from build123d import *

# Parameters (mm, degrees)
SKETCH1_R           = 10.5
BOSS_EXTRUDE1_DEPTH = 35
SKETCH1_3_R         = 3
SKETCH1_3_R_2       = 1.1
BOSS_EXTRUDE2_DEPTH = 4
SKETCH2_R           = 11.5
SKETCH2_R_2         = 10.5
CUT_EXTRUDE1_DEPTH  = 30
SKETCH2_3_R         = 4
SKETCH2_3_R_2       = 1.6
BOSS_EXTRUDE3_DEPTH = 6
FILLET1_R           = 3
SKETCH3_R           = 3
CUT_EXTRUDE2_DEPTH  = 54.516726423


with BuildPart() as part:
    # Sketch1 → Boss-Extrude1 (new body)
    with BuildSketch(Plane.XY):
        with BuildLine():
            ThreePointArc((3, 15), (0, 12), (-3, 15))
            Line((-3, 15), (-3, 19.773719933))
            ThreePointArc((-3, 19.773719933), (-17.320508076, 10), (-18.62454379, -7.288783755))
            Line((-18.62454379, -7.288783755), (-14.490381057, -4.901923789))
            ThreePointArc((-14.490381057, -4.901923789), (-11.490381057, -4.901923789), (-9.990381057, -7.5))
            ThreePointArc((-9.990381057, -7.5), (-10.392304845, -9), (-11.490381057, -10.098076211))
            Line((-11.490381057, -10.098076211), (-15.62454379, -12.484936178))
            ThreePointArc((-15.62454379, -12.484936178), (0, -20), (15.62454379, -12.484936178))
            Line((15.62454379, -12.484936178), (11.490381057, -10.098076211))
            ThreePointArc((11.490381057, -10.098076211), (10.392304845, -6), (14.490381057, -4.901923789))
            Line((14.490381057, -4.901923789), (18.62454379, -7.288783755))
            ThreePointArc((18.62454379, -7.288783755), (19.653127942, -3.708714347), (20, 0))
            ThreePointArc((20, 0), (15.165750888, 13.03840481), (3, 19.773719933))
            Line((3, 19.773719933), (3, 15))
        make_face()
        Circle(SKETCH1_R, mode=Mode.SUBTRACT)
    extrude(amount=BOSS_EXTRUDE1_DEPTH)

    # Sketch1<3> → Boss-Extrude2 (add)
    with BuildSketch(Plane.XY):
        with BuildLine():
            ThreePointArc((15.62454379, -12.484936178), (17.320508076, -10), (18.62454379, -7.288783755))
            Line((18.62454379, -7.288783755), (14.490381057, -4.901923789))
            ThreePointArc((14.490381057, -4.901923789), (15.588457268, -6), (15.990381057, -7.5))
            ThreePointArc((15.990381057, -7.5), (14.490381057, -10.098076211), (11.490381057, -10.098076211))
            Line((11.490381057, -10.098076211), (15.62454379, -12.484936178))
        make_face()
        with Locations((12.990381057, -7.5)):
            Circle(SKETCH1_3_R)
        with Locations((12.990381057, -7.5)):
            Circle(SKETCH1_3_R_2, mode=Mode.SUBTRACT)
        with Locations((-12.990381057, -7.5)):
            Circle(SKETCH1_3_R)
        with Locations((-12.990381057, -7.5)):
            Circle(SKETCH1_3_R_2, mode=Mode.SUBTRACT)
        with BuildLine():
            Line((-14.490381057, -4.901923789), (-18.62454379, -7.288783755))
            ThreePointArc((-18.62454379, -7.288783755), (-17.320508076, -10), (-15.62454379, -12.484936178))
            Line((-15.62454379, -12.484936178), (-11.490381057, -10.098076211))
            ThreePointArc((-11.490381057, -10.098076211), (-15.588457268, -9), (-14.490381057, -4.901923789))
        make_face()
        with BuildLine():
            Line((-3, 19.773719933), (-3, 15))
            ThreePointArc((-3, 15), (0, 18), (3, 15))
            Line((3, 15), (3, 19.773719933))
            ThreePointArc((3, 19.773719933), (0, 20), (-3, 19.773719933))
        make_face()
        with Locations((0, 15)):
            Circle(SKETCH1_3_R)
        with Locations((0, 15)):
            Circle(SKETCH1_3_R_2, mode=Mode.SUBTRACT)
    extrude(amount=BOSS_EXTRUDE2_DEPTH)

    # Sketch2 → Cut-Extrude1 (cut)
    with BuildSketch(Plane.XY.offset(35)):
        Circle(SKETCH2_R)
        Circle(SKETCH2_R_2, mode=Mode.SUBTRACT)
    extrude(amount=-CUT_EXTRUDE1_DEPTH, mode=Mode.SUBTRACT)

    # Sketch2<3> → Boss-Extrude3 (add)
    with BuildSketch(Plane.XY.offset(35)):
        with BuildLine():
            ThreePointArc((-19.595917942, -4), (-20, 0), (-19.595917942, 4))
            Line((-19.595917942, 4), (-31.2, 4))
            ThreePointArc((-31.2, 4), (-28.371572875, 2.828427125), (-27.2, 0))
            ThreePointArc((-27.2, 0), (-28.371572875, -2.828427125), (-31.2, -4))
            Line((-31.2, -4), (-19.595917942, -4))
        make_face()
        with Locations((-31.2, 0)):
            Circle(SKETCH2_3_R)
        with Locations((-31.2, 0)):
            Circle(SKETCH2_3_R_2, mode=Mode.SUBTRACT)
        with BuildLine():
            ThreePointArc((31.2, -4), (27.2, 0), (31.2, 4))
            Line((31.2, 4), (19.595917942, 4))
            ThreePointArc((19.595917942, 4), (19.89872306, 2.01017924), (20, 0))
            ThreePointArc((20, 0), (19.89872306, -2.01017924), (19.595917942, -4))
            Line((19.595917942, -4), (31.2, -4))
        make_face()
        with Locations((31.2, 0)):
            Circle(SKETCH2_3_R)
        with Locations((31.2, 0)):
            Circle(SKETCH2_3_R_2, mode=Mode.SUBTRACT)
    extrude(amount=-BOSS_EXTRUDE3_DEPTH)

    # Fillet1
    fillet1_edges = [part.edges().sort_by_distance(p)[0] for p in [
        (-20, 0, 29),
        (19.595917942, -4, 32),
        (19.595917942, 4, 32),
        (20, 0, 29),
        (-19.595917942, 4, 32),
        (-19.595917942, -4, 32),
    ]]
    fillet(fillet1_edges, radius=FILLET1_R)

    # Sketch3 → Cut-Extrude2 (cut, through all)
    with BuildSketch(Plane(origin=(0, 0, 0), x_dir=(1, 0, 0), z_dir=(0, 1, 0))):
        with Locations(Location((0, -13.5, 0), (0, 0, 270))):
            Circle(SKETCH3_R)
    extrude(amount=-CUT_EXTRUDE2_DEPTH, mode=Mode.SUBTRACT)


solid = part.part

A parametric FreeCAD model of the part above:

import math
import FreeCAD as App
import Part
import Sketcher

V = App.Vector
Q = App.Units.Quantity


def edges_at(feature, points):
    """Names of the edges that pass closest to the given points."""
    edges = feature.Shape.Edges
    near = lambda p: min(range(len(edges)), key=lambda i: edges[i].distToShape(Part.Vertex(*p))[0])
    return sorted({f"Edge{near(p) + 1}" for p in points})

doc = App.newDocument("Part")
params = doc.addObject("Spreadsheet::Sheet", "Params")
for row, (alias, value) in enumerate([
    ("sketch1_diameter", "21 mm"),
    ("sketch1_radius", "3 mm"),
    ("sketch1_radius2", "20 mm"),
    ("pad1_length", "35 mm"),
    ("sketch2_radius", "20 mm"),
    ("sketch2_radius2", "3 mm"),
    ("sketch2_diameter", "2.2 mm"),
    ("pad2_length", "4 mm"),
    ("sketch3_diameter", "23 mm"),
    ("sketch3_diameter2", "21 mm"),
    ("pocket1_length", "30 mm"),
    ("sketch4_radius", "20 mm"),
    ("sketch4_radius2", "4 mm"),
    ("sketch4_diameter", "3.2 mm"),
    ("pad3_length", "6 mm"),
    ("fillet_radius", "3 mm"),
    ("sketch5_diameter", "6 mm"),
], start=1):
    params.set(f"A{row}", alias)
    params.set(f"B{row}", "=" + value)
    params.setAlias(f"B{row}", alias)

body = doc.addObject("PartDesign::Body", "Body")

sketch1 = doc.addObject("Sketcher::SketchObject", "Sketch")
body.addObject(sketch1)
sketch1.AttachmentSupport = (doc.XY_Plane, [""])
sketch1.MapMode = "FlatFace"
sketch1.addGeometry([
    Part.ArcOfCircle(Part.Circle(V(0, 15, 0), V(0, 0, 1), 3), math.radians(180), math.radians(360)),
    Part.LineSegment(V(-3, 15, 0), V(-3, 19.8, 0)),
    Part.ArcOfCircle(Part.Circle(V(0, 0, 0), V(0, 0, 1), 20), math.radians(99), math.radians(201)),
    Part.LineSegment(V(-18.6, -7.3, 0), V(-14.5, -4.9, 0)),
    Part.ArcOfCircle(Part.Circle(V(-13, -7.5, 0), V(0, 0, 1), 3), math.radians(0), math.radians(120)),
    Part.ArcOfCircle(Part.Circle(V(-13, -7.5, 0), V(0, 0, 1), 3), math.radians(-60), math.radians(0)),
    Part.LineSegment(V(-11.5, -10.1, 0), V(-15.6, -12.5, 0)),
    Part.ArcOfCircle(Part.Circle(V(0, 0, 0), V(0, 0, 1), 20), math.radians(-141), math.radians(-39)),
    Part.LineSegment(V(15.6, -12.5, 0), V(11.5, -10.1, 0)),
    Part.ArcOfCircle(Part.Circle(V(13, -7.5, 0), V(0, 0, 1), 3), math.radians(60), math.radians(240)),
    Part.LineSegment(V(14.5, -4.9, 0), V(18.6, -7.3, 0)),
    Part.ArcOfCircle(Part.Circle(V(0, 0, 0), V(0, 0, 1), 20), math.radians(-21), math.radians(0)),
    Part.ArcOfCircle(Part.Circle(V(0, 0, 0), V(0, 0, 1), 20), math.radians(0), math.radians(81)),
    Part.LineSegment(V(3, 19.8, 0), V(3, 15, 0)),
    Part.Circle(V(0, 0, 0), V(0, 0, 1), 10.5),
], False)
sketch1.addConstraint([
    Sketcher.Constraint("Tangent", 0, 1, 1, 1),
    Sketcher.Constraint("Coincident", 1, 2, 2, 1),
    Sketcher.Constraint("Coincident", 2, 2, 3, 1),
    Sketcher.Constraint("Tangent", 3, 2, 4, 2),
    Sketcher.Constraint("Tangent", 4, 1, 5, 2),
    Sketcher.Constraint("Tangent", 5, 1, 6, 1),
    Sketcher.Constraint("Coincident", 6, 2, 7, 1),
    Sketcher.Constraint("Coincident", 7, 2, 8, 1),
    Sketcher.Constraint("Tangent", 8, 2, 9, 2),
    Sketcher.Constraint("Tangent", 9, 1, 10, 1),
    Sketcher.Constraint("Coincident", 10, 2, 11, 1),
    Sketcher.Constraint("Tangent", 11, 2, 12, 1),
    Sketcher.Constraint("Coincident", 12, 2, 13, 1),
    Sketcher.Constraint("Tangent", 13, 2, 0, 2),
    Sketcher.Constraint("Vertical", 1),
    Sketcher.Constraint("Vertical", 13),
    Sketcher.Constraint("Coincident", 2, 3, -1, 1),
    Sketcher.Constraint("Coincident", 7, 3, -1, 1),
    Sketcher.Constraint("Coincident", 11, 3, -1, 1),
    Sketcher.Constraint("Coincident", 14, 3, -1, 1),
    Sketcher.Constraint("Equal", 0, 4),
    Sketcher.Constraint("Equal", 4, 5),
    Sketcher.Constraint("Equal", 2, 7),
    Sketcher.Constraint("Equal", 5, 9),
    Sketcher.Constraint("Equal", 7, 11),
    Sketcher.Constraint("Equal", 11, 12),
    Sketcher.Constraint("Symmetric", 4, 3, 9, 3, -2),
    Sketcher.Constraint("PointOnObject", 0, 3, -2),
    Sketcher.Constraint("PointOnObject", 11, 2, -1),
    Sketcher.Constraint("Parallel", 3, 6),
    Sketcher.Constraint("Parallel", 8, 10),
    Sketcher.Constraint("Horizontal", 9, 3, 4, 1),
    Sketcher.Constraint("Horizontal", 6, 2, 7, 2),
    Sketcher.Constraint("Equal", 3, 6),
    Sketcher.Constraint("Diameter", 14, 21.0),
    Sketcher.Constraint("Radius", 0, 3.0),
    Sketcher.Constraint("Radius", 2, 20.0),
    Sketcher.Constraint("Angle", 3, Q("30 deg")),
    Sketcher.Constraint("DistanceY", -1, 1, 0, 3, 15.0),
    Sketcher.Constraint("DistanceY", 4, 3, -1, 1, 7.5),
])
sketch1.setExpression("Constraints[34]", "Params.sketch1_diameter")
sketch1.setExpression("Constraints[35]", "Params.sketch1_radius")
sketch1.setExpression("Constraints[36]", "Params.sketch1_radius2")
pad1 = doc.addObject("PartDesign::Pad", "Pad")
body.addObject(pad1)
pad1.Profile = sketch1
pad1.setExpression("Length", "Params.pad1_length")

sketch2 = doc.addObject("Sketcher::SketchObject", "Sketch001")
body.addObject(sketch2)
sketch2.AttachmentSupport = (doc.XY_Plane, [""])
sketch2.MapMode = "FlatFace"
sketch2.addGeometry([
    Part.ArcOfCircle(Part.Circle(V(0, 0, 0), V(0, 0, 1), 20), math.radians(-38.63), math.radians(-21.37)),
    Part.LineSegment(V(18.6, -7.3, 0), V(14.5, -4.9, 0)),
    Part.ArcOfCircle(Part.Circle(V(13, -7.5, 0), V(0, 0, 1), 3), math.radians(60), math.radians(240)),
    Part.LineSegment(V(11.5, -10.1, 0), V(15.6, -12.5, 0)),
    Part.Circle(V(13, -7.5, 0), V(0, 0, 1), 1.1),
    Part.LineSegment(V(-14.5, -4.9, 0), V(-18.6, -7.3, 0)),
    Part.ArcOfCircle(Part.Circle(V(0, 0, 0), V(0, 0, 1), 20), math.radians(-158.63), math.radians(-141.37)),
    Part.LineSegment(V(-15.6, -12.5, 0), V(-11.5, -10.1, 0)),
    Part.ArcOfCircle(Part.Circle(V(-13, -7.5, 0), V(0, 0, 1), 3), math.radians(-60), math.radians(120)),
    Part.Circle(V(-13, -7.5, 0), V(0, 0, 1), 1.1),
    Part.LineSegment(V(-3, 19.8, 0), V(-3, 15, 0)),
    Part.ArcOfCircle(Part.Circle(V(0, 15, 0), V(0, 0, 1), 3), math.radians(180), math.radians(360)),
    Part.LineSegment(V(3, 15, 0), V(3, 19.8, 0)),
    Part.ArcOfCircle(Part.Circle(V(0, 0, 0), V(0, 0, 1), 20), math.radians(81.37), math.radians(98.63)),
    Part.Circle(V(0, 15, 0), V(0, 0, 1), 1.1),
], False)
sketch2.addConstraint([
    Sketcher.Constraint("Coincident", 0, 2, 1, 1),
    Sketcher.Constraint("Tangent", 1, 2, 2, 1),
    Sketcher.Constraint("Tangent", 2, 2, 3, 1),
    Sketcher.Constraint("Coincident", 3, 2, 0, 1),
    Sketcher.Constraint("Coincident", 5, 2, 6, 1),
    Sketcher.Constraint("Coincident", 6, 2, 7, 1),
    Sketcher.Constraint("Tangent", 7, 2, 8, 1),
    Sketcher.Constraint("Tangent", 8, 2, 5, 1),
    Sketcher.Constraint("Tangent", 10, 2, 11, 1),
    Sketcher.Constraint("Tangent", 11, 2, 12, 1),
    Sketcher.Constraint("Coincident", 12, 2, 13, 1),
    Sketcher.Constraint("Coincident", 13, 2, 10, 1),
    Sketcher.Constraint("Vertical", 10),
    Sketcher.Constraint("Vertical", 12),
    Sketcher.Constraint("Coincident", 0, 3, -1, 1),
    Sketcher.Constraint("Coincident", 6, 3, -1, 1),
    Sketcher.Constraint("Coincident", 13, 3, -1, 1),
    Sketcher.Constraint("Coincident", 4, 3, 2, 3),
    Sketcher.Constraint("Coincident", 9, 3, 8, 3),
    Sketcher.Constraint("Coincident", 14, 3, 11, 3),
    Sketcher.Constraint("Equal", 0, 6),
    Sketcher.Constraint("Equal", 2, 8),
    Sketcher.Constraint("Equal", 4, 9),
    Sketcher.Constraint("Equal", 8, 11),
    Sketcher.Constraint("Equal", 6, 13),
    Sketcher.Constraint("Equal", 9, 14),
    Sketcher.Constraint("Symmetric", 2, 3, 8, 3, -2),
    Sketcher.Constraint("PointOnObject", 11, 3, -2),
    Sketcher.Constraint("Parallel", 1, 3),
    Sketcher.Constraint("Parallel", 5, 7),
    Sketcher.Constraint("Horizontal", 0, 2, 5, 2),
    Sketcher.Constraint("Equal", 1, 3),
    Sketcher.Constraint("Radius", 0, 20.0),
    Sketcher.Constraint("Radius", 2, 3.0),
    Sketcher.Constraint("Diameter", 4, 2.2),
    Sketcher.Constraint("Angle", 1, Q("150 deg")),
    Sketcher.Constraint("DistanceY", -1, 1, 11, 3, 15.0),
    Sketcher.Constraint("DistanceY", 2, 3, -1, 1, 7.5),
])
sketch2.setExpression("Constraints[32]", "Params.sketch2_radius")
sketch2.setExpression("Constraints[33]", "Params.sketch2_radius2")
sketch2.setExpression("Constraints[34]", "Params.sketch2_diameter")
pad2 = doc.addObject("PartDesign::Pad", "Pad001")
body.addObject(pad2)
pad2.Profile = sketch2
pad2.setExpression("Length", "Params.pad2_length")

sketch3 = doc.addObject("Sketcher::SketchObject", "Sketch002")
body.addObject(sketch3)
sketch3.AttachmentSupport = (doc.XY_Plane, [""])
sketch3.MapMode = "FlatFace"
sketch3.AttachmentOffset = App.Placement(V(0, 0, 35), App.Rotation())
sketch3.addGeometry([
    Part.Circle(V(0, 0, 0), V(0, 0, 1), 12),
    Part.Circle(V(0, 0, 0), V(0, 0, 1), 10),
], False)
sketch3.addConstraint([
    Sketcher.Constraint("Coincident", 0, 3, -1, 1),
    Sketcher.Constraint("Coincident", 1, 3, -1, 1),
    Sketcher.Constraint("Diameter", 0, 23.0),
    Sketcher.Constraint("Diameter", 1, 21.0),
])
sketch3.setExpression("Constraints[2]", "Params.sketch3_diameter")
sketch3.setExpression("Constraints[3]", "Params.sketch3_diameter2")
pocket1 = doc.addObject("PartDesign::Pocket", "Pocket")
body.addObject(pocket1)
pocket1.Profile = sketch3
pocket1.setExpression("Length", "Params.pocket1_length")

sketch4 = doc.addObject("Sketcher::SketchObject", "Sketch003")
body.addObject(sketch4)
sketch4.AttachmentSupport = (doc.XY_Plane, [""])
sketch4.MapMode = "FlatFace"
sketch4.AttachmentOffset = App.Placement(V(0, 0, 35), App.Rotation())
sketch4.addGeometry([
    Part.ArcOfCircle(Part.Circle(V(0, 0, 0), V(0, 0, 1), 20), math.radians(168), math.radians(192)),
    Part.LineSegment(V(-19.6, 4, 0), V(-31.2, 4, 0)),
    Part.ArcOfCircle(Part.Circle(V(-31.2, 0, 0), V(0, 0, 1), 4), math.radians(90), math.radians(270)),
    Part.LineSegment(V(-31.2, -4, 0), V(-19.6, -4, 0)),
    Part.Circle(V(-31.2, 0, 0), V(0, 0, 1), 1.6),
    Part.LineSegment(V(31.2, 4, 0), V(19.6, 4, 0)),
    Part.ArcOfCircle(Part.Circle(V(0, 0, 0), V(0, 0, 1), 20), math.radians(0), math.radians(11.54)),
    Part.ArcOfCircle(Part.Circle(V(0, 0, 0), V(0, 0, 1), 20), math.radians(-11.54), math.radians(0)),
    Part.LineSegment(V(19.6, -4, 0), V(31.2, -4, 0)),
    Part.ArcOfCircle(Part.Circle(V(31.2, 0, 0), V(0, 0, 1), 4), math.radians(-90), math.radians(90)),
    Part.Circle(V(31.2, 0, 0), V(0, 0, 1), 1.6),
], False)
sketch4.addConstraint([
    Sketcher.Constraint("Coincident", 0, 1, 1, 1),
    Sketcher.Constraint("Tangent", 1, 2, 2, 1),
    Sketcher.Constraint("Tangent", 2, 2, 3, 1),
    Sketcher.Constraint("Coincident", 3, 2, 0, 2),
    Sketcher.Constraint("Coincident", 5, 2, 6, 2),
    Sketcher.Constraint("Tangent", 6, 1, 7, 2),
    Sketcher.Constraint("Coincident", 7, 1, 8, 1),
    Sketcher.Constraint("Tangent", 8, 2, 9, 1),
    Sketcher.Constraint("Tangent", 9, 2, 5, 1),
    Sketcher.Constraint("Horizontal", 1),
    Sketcher.Constraint("Horizontal", 3),
    Sketcher.Constraint("Horizontal", 5),
    Sketcher.Constraint("Horizontal", 8),
    Sketcher.Constraint("Coincident", 0, 3, -1, 1),
    Sketcher.Constraint("Coincident", 6, 3, -1, 1),
    Sketcher.Constraint("Coincident", 4, 3, 2, 3),
    Sketcher.Constraint("Coincident", 10, 3, 9, 3),
    Sketcher.Constraint("Equal", 0, 6),
    Sketcher.Constraint("Equal", 6, 7),
    Sketcher.Constraint("Equal", 2, 9),
    Sketcher.Constraint("Equal", 4, 10),
    Sketcher.Constraint("Symmetric", 2, 3, 9, 3, -1, 1),
    Sketcher.Constraint("PointOnObject", 2, 3, -1),
    Sketcher.Constraint("PointOnObject", 6, 1, -1),
    Sketcher.Constraint("Radius", 0, 20.0),
    Sketcher.Constraint("Radius", 2, 4.0),
    Sketcher.Constraint("Diameter", 4, 3.2),
    Sketcher.Constraint("DistanceX", 2, 3, -1, 1, 31.2),
])
sketch4.setExpression("Constraints[24]", "Params.sketch4_radius")
sketch4.setExpression("Constraints[25]", "Params.sketch4_radius2")
sketch4.setExpression("Constraints[26]", "Params.sketch4_diameter")
pad3 = doc.addObject("PartDesign::Pad", "Pad002")
body.addObject(pad3)
pad3.Profile = sketch4
pad3.setExpression("Length", "Params.pad3_length")
pad3.Reversed = True
doc.recompute()

fillet = doc.addObject("PartDesign::Fillet", "Fillet")
body.addObject(fillet)
fillet.Base = (pad3, edges_at(pad3, [
    (-20, 0, 29),
    (19.596, -4, 32),
    (19.596, 4, 32),
    (19.899, 2.01, 29),
    (-19.596, 4, 32),
    (-19.596, -4, 32),
]))
fillet.setExpression("Radius", "Params.fillet_radius")

sketch5 = doc.addObject("Sketcher::SketchObject", "Sketch004")
body.addObject(sketch5)
sketch5.AttachmentSupport = (doc.XZ_Plane, [""])
sketch5.MapMode = "FlatFace"
sketch5.addGeometry(Part.Circle(V(0, 13.5, 0), V(0, 0, 1), 3), False)
sketch5.addConstraint([
    Sketcher.Constraint("PointOnObject", 0, 3, -2),
    Sketcher.Constraint("Diameter", 0, 6.0),
    Sketcher.Constraint("DistanceY", -1, 1, 0, 3, 13.5),
])
sketch5.setExpression("Constraints[1]", "Params.sketch5_diameter")
pocket2 = doc.addObject("PartDesign::Pocket", "Pocket001")
body.addObject(pocket2)
pocket2.Profile = sketch5
pocket2.Type = "ThroughAll"
pocket2.Reversed = True

doc.recompute()
